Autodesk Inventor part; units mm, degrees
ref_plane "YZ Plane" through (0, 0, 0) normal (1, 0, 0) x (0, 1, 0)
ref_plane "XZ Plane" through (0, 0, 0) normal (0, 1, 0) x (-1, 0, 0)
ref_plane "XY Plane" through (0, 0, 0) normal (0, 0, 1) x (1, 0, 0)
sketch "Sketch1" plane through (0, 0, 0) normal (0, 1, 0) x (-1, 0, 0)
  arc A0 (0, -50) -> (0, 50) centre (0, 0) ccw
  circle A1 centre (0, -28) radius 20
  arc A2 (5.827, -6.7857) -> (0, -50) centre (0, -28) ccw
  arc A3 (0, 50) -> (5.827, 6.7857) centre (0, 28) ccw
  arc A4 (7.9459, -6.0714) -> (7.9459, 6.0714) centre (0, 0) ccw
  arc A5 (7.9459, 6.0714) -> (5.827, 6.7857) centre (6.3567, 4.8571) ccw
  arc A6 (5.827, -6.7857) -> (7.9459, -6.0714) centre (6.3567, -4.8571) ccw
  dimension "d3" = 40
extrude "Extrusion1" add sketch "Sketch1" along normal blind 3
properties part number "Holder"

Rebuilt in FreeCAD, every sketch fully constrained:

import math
import FreeCAD as App
import Part
import Sketcher

doc = App.newDocument("Part")
body = doc.addObject("PartDesign::Body", "Body")

# Sketch on XZ plane
sketch1 = body.newObject("Sketcher::SketchObject", "Sketch")
sketch1.AttachmentSupport = (doc.getObject("XZ_Plane"), [""])
sketch1.MapMode = "FlatFace"
sketch1.addGeometry([
    Part.ArcOfCircle(Part.Circle(App.Vector(0, -28, 0), App.Vector(0, 0, 1), 22), math.radians(-90), math.radians(105)),  # 0
    Part.ArcOfCircle(Part.Circle(App.Vector(0, 0, 0), App.Vector(0, 0, 1), 50), math.radians(90), math.radians(270)),  # 1
    Part.ArcOfCircle(Part.Circle(App.Vector(0, 28, 0), App.Vector(0, 0, 1), 22), math.radians(-105), math.radians(90)),  # 2
    Part.ArcOfCircle(Part.Circle(App.Vector(-6.4, 4.9, 0), App.Vector(0, 0, 1), 2), math.radians(75), math.radians(143)),  # 3
    Part.ArcOfCircle(Part.Circle(App.Vector(0, 0, 0), App.Vector(0, 0, 1), 10), math.radians(143), math.radians(217)),  # 4
    Part.ArcOfCircle(Part.Circle(App.Vector(-6.4, -4.9, 0), App.Vector(0, 0, 1), 2), math.radians(-143), math.radians(-75)),  # 5
    Part.Circle(App.Vector(0, -28, 0), App.Vector(0, 0, 1), 20),  # 6
], False)
sketch1.addConstraint([
    Sketcher.Constraint("Tangent", 0, 1, 1, 2),
    Sketcher.Constraint("Tangent", 1, 1, 2, 2),
    Sketcher.Constraint("Tangent", 2, 1, 3, 1),
    Sketcher.Constraint("Tangent", 3, 2, 4, 1),
    Sketcher.Constraint("Tangent", 4, 2, 5, 1),
    Sketcher.Constraint("Tangent", 5, 2, 0, 2),
    Sketcher.Constraint("Coincident", 1, 3, -1, 1),
    Sketcher.Constraint("Coincident", 4, 3, -1, 1),
    Sketcher.Constraint("Coincident", 6, 3, 0, 3),
    Sketcher.Constraint("Equal", 0, 2),
    Sketcher.Constraint("Equal", 3, 5),
    Sketcher.Constraint("PointOnObject", 0, 3, -2),
    Sketcher.Constraint("PointOnObject", 2, 3, -2),
    Sketcher.Constraint("Diameter", 6, 40.0),
    Sketcher.Constraint("Radius", 0, 22.0),
    Sketcher.Constraint("Radius", 1, 50.0),
    Sketcher.Constraint("Radius", 3, 2.0),
    Sketcher.Constraint("Radius", 4, 10.0),
])
pad1 = body.newObject("PartDesign::Pad", "Pad")
pad1.Profile = sketch1
pad1.Length = 3
pad1.Reversed = True

doc.recompute()
